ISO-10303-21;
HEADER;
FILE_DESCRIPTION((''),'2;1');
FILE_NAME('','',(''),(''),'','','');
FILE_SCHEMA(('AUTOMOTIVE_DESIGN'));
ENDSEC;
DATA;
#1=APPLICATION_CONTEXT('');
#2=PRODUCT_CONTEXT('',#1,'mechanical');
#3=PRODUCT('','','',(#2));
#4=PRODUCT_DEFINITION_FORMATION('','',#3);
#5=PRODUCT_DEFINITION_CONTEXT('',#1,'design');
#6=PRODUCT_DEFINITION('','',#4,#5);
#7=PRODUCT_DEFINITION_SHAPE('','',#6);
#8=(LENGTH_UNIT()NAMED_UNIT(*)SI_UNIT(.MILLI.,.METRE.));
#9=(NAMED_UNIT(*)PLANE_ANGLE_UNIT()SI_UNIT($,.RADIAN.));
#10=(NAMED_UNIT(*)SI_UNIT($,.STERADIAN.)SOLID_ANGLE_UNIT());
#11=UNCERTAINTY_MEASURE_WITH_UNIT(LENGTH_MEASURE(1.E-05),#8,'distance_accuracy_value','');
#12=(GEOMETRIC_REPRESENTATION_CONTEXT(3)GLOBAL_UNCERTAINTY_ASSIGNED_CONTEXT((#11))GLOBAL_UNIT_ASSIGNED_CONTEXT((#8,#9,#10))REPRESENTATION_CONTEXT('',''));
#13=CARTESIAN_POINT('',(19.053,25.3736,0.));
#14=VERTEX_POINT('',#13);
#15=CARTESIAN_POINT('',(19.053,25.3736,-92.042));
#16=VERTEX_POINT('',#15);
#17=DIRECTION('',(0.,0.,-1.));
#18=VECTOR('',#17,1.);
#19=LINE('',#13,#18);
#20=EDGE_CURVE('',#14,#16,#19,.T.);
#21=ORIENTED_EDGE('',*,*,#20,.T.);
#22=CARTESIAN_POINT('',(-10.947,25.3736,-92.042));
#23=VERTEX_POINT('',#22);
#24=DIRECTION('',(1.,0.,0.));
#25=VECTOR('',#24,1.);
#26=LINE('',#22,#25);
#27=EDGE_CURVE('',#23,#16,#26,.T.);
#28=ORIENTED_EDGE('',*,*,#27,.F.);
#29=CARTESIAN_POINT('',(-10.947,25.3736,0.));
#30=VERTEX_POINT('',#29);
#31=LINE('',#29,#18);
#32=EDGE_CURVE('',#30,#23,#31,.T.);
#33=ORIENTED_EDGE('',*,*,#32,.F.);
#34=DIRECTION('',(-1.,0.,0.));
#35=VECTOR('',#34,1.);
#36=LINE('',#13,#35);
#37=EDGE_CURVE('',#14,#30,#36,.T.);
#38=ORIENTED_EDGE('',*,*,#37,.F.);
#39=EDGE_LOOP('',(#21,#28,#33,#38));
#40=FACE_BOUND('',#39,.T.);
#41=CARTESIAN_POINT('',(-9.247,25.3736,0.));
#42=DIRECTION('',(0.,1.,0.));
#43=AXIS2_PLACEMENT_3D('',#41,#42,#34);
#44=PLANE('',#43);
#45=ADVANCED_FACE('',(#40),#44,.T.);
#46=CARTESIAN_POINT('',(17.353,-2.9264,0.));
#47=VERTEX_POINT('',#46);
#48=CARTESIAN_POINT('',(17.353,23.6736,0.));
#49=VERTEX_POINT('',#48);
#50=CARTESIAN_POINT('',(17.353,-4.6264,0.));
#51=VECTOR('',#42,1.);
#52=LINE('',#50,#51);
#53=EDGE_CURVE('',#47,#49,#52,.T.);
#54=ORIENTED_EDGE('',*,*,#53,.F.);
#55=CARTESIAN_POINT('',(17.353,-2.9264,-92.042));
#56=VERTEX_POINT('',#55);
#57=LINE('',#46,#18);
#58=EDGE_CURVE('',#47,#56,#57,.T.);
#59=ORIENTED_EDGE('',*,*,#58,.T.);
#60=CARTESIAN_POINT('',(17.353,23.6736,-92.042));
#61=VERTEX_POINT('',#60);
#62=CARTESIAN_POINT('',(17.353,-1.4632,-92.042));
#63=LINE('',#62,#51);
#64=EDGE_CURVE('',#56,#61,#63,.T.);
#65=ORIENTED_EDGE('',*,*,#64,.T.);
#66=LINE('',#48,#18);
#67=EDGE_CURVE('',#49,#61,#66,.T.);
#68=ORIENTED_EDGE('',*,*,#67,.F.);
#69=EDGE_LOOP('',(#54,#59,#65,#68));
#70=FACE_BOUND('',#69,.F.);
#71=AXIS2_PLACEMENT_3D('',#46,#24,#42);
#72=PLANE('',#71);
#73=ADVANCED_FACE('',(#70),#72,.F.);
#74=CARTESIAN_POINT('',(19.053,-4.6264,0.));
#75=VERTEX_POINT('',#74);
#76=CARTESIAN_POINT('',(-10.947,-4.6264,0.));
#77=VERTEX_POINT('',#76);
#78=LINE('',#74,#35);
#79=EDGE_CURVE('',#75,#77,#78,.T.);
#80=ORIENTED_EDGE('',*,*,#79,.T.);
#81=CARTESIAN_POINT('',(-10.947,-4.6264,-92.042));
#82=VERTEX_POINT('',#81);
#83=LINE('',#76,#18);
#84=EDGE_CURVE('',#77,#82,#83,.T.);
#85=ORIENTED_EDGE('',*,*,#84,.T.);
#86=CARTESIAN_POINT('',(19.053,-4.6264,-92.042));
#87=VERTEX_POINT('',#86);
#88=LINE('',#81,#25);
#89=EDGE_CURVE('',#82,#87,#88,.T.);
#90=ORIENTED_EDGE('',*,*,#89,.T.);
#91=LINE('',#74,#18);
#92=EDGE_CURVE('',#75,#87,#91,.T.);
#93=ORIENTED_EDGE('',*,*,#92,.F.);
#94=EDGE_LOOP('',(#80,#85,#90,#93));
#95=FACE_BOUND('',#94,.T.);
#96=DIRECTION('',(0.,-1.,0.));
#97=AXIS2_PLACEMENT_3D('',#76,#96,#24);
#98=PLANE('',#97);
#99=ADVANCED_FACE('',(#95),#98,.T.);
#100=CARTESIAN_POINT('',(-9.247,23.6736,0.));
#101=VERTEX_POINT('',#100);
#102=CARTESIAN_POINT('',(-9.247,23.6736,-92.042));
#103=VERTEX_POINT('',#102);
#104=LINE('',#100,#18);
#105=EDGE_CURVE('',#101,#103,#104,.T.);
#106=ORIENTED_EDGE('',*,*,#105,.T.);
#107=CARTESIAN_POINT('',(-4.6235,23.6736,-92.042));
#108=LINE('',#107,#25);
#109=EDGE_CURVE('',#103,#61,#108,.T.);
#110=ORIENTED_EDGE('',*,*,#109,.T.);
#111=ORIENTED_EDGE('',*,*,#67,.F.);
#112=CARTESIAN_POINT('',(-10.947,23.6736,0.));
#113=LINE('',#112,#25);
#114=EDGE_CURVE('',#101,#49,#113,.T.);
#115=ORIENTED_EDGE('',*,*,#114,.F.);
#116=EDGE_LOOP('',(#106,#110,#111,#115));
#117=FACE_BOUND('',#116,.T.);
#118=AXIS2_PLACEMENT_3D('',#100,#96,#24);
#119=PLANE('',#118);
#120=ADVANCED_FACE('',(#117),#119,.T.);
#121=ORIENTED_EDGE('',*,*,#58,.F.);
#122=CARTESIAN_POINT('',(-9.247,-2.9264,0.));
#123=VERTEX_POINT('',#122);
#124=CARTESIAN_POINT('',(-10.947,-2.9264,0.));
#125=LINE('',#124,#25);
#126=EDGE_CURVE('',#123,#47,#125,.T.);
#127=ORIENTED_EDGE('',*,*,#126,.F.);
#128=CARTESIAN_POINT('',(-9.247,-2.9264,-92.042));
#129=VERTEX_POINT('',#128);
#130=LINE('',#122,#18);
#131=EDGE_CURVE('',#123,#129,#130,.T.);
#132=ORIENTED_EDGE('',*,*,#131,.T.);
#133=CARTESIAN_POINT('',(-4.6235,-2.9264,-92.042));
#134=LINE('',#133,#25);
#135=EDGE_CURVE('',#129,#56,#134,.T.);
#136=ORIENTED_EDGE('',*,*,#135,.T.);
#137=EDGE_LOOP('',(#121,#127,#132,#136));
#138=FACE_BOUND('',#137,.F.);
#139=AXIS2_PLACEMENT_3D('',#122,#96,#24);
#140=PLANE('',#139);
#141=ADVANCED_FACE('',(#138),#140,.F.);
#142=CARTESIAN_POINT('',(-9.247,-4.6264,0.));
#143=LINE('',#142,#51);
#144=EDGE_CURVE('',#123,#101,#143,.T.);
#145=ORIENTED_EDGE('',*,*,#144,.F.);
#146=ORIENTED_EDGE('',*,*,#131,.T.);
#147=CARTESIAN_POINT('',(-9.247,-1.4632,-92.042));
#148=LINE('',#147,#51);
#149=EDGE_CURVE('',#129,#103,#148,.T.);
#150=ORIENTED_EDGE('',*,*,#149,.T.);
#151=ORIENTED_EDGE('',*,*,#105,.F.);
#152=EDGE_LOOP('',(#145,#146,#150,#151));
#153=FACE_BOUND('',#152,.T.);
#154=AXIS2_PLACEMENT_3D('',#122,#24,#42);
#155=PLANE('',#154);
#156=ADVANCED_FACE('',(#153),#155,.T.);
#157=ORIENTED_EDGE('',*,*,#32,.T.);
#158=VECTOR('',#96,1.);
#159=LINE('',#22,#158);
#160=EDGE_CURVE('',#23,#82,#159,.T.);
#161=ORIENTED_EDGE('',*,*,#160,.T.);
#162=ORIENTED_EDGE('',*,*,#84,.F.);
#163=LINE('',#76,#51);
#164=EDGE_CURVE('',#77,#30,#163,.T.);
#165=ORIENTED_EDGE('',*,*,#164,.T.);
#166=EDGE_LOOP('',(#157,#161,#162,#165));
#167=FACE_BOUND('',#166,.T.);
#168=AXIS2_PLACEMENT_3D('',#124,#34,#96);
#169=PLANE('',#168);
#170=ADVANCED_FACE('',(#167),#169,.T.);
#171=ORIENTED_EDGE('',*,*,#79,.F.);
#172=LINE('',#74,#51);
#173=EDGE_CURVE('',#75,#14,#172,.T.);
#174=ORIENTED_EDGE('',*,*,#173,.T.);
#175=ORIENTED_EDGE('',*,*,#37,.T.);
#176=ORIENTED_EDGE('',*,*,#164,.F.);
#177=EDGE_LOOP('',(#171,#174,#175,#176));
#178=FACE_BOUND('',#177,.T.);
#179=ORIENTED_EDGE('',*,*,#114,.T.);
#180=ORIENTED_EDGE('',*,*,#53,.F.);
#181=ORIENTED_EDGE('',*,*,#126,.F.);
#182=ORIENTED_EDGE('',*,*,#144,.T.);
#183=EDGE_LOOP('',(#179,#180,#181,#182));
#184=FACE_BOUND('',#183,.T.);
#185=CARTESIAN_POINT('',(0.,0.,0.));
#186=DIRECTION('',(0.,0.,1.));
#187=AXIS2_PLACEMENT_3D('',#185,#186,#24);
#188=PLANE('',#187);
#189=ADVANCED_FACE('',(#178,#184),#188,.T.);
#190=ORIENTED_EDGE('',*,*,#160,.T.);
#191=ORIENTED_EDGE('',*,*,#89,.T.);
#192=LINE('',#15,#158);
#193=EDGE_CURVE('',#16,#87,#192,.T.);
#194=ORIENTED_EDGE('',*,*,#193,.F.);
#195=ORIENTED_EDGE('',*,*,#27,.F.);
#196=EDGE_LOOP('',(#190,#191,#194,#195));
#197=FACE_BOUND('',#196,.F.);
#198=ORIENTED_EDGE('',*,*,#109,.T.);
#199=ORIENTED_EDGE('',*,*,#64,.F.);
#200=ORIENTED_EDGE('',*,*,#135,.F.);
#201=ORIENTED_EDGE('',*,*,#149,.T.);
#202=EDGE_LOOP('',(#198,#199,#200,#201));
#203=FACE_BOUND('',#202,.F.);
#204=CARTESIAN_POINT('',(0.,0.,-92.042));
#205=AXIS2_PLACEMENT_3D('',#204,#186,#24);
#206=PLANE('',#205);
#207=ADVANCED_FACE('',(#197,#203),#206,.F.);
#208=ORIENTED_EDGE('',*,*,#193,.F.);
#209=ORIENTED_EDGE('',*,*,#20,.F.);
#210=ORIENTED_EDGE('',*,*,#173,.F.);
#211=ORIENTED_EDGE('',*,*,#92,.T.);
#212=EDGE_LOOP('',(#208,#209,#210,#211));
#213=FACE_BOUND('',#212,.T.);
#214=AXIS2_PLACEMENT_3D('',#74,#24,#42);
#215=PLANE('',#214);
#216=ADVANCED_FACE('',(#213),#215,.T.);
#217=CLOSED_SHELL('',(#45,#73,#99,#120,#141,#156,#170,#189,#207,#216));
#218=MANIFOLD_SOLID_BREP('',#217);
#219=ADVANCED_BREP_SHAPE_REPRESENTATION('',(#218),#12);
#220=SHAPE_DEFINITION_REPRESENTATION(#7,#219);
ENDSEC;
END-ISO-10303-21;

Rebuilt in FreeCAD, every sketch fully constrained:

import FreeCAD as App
import Part
import Sketcher
Q = App.Units.Quantity


def add_polygon(sketch, points):
    """Adds a closed chain of lines whose ends are joined by coincident constraints."""
    first, n = sketch.GeometryCount, len(points)
    for a, b in zip(points, points[1:] + points[:1]):
        sketch.addGeometry(Part.LineSegment(App.Vector(*a, 0), App.Vector(*b, 0)), False)
    for i in range(n):
        sketch.addConstraint(Sketcher.Constraint("Coincident", first + i, 2, first + (i + 1) % n, 1))

doc = App.newDocument("Part")
body = doc.addObject("PartDesign::Body", "Body")

sketch1 = body.newObject("Sketcher::SketchObject", "Sketch")
sketch1.AttachmentSupport = (doc.getObject("XY_Plane"), [""])
sketch1.MapMode = "FlatFace"
add_polygon(sketch1, [(-11, -5), (19, -5), (19, 25), (-11, 25)])
sketch1.addConstraint([
    Sketcher.Constraint("Horizontal", 0),
    Sketcher.Constraint("Vertical", 1),
    Sketcher.Constraint("Horizontal", 2),
    Sketcher.Constraint("Vertical", 3),
    Sketcher.Constraint("Equal", 2, 1),
    Sketcher.Constraint("DistanceX", 0, 1, 0, 2, Q("30 mm")),
    Sketcher.Constraint("DistanceX", -1, 1, 0, 2, Q("19.053 mm")),
    Sketcher.Constraint("DistanceY", 0, 2, -1, 1, Q("4.6264 mm")),
])
pad1 = body.newObject("PartDesign::Pad", "Pad")
pad1.Profile = sketch1
pad1.Length = 92.042
pad1.Reversed = True

sketch2 = body.newObject("Sketcher::SketchObject", "Sketch001")
sketch2.AttachmentSupport = (doc.getObject("XY_Plane"), [""])
sketch2.MapMode = "FlatFace"
add_polygon(sketch2, [(-9, 24), (-9, -3), (17, -3), (17, 24)])
sketch2.addConstraint([
    Sketcher.Constraint("Vertical", 0),
    Sketcher.Constraint("Horizontal", 1),
    Sketcher.Constraint("Vertical", 2),
    Sketcher.Constraint("Horizontal", 3),
    Sketcher.Constraint("Equal", 3, 0),
    Sketcher.Constraint("DistanceX", 1, 1, 1, 2, Q("26.6 mm")),
    Sketcher.Constraint("DistanceX", 0, 2, -1, 1, Q("9.247 mm")),
    Sketcher.Constraint("DistanceY", 0, 2, -1, 1, Q("2.9264 mm")),
])
pocket1 = body.newObject("PartDesign::Pocket", "Pocket")
pocket1.Profile = sketch2
pocket1.Length = 100000

doc.recompute()
